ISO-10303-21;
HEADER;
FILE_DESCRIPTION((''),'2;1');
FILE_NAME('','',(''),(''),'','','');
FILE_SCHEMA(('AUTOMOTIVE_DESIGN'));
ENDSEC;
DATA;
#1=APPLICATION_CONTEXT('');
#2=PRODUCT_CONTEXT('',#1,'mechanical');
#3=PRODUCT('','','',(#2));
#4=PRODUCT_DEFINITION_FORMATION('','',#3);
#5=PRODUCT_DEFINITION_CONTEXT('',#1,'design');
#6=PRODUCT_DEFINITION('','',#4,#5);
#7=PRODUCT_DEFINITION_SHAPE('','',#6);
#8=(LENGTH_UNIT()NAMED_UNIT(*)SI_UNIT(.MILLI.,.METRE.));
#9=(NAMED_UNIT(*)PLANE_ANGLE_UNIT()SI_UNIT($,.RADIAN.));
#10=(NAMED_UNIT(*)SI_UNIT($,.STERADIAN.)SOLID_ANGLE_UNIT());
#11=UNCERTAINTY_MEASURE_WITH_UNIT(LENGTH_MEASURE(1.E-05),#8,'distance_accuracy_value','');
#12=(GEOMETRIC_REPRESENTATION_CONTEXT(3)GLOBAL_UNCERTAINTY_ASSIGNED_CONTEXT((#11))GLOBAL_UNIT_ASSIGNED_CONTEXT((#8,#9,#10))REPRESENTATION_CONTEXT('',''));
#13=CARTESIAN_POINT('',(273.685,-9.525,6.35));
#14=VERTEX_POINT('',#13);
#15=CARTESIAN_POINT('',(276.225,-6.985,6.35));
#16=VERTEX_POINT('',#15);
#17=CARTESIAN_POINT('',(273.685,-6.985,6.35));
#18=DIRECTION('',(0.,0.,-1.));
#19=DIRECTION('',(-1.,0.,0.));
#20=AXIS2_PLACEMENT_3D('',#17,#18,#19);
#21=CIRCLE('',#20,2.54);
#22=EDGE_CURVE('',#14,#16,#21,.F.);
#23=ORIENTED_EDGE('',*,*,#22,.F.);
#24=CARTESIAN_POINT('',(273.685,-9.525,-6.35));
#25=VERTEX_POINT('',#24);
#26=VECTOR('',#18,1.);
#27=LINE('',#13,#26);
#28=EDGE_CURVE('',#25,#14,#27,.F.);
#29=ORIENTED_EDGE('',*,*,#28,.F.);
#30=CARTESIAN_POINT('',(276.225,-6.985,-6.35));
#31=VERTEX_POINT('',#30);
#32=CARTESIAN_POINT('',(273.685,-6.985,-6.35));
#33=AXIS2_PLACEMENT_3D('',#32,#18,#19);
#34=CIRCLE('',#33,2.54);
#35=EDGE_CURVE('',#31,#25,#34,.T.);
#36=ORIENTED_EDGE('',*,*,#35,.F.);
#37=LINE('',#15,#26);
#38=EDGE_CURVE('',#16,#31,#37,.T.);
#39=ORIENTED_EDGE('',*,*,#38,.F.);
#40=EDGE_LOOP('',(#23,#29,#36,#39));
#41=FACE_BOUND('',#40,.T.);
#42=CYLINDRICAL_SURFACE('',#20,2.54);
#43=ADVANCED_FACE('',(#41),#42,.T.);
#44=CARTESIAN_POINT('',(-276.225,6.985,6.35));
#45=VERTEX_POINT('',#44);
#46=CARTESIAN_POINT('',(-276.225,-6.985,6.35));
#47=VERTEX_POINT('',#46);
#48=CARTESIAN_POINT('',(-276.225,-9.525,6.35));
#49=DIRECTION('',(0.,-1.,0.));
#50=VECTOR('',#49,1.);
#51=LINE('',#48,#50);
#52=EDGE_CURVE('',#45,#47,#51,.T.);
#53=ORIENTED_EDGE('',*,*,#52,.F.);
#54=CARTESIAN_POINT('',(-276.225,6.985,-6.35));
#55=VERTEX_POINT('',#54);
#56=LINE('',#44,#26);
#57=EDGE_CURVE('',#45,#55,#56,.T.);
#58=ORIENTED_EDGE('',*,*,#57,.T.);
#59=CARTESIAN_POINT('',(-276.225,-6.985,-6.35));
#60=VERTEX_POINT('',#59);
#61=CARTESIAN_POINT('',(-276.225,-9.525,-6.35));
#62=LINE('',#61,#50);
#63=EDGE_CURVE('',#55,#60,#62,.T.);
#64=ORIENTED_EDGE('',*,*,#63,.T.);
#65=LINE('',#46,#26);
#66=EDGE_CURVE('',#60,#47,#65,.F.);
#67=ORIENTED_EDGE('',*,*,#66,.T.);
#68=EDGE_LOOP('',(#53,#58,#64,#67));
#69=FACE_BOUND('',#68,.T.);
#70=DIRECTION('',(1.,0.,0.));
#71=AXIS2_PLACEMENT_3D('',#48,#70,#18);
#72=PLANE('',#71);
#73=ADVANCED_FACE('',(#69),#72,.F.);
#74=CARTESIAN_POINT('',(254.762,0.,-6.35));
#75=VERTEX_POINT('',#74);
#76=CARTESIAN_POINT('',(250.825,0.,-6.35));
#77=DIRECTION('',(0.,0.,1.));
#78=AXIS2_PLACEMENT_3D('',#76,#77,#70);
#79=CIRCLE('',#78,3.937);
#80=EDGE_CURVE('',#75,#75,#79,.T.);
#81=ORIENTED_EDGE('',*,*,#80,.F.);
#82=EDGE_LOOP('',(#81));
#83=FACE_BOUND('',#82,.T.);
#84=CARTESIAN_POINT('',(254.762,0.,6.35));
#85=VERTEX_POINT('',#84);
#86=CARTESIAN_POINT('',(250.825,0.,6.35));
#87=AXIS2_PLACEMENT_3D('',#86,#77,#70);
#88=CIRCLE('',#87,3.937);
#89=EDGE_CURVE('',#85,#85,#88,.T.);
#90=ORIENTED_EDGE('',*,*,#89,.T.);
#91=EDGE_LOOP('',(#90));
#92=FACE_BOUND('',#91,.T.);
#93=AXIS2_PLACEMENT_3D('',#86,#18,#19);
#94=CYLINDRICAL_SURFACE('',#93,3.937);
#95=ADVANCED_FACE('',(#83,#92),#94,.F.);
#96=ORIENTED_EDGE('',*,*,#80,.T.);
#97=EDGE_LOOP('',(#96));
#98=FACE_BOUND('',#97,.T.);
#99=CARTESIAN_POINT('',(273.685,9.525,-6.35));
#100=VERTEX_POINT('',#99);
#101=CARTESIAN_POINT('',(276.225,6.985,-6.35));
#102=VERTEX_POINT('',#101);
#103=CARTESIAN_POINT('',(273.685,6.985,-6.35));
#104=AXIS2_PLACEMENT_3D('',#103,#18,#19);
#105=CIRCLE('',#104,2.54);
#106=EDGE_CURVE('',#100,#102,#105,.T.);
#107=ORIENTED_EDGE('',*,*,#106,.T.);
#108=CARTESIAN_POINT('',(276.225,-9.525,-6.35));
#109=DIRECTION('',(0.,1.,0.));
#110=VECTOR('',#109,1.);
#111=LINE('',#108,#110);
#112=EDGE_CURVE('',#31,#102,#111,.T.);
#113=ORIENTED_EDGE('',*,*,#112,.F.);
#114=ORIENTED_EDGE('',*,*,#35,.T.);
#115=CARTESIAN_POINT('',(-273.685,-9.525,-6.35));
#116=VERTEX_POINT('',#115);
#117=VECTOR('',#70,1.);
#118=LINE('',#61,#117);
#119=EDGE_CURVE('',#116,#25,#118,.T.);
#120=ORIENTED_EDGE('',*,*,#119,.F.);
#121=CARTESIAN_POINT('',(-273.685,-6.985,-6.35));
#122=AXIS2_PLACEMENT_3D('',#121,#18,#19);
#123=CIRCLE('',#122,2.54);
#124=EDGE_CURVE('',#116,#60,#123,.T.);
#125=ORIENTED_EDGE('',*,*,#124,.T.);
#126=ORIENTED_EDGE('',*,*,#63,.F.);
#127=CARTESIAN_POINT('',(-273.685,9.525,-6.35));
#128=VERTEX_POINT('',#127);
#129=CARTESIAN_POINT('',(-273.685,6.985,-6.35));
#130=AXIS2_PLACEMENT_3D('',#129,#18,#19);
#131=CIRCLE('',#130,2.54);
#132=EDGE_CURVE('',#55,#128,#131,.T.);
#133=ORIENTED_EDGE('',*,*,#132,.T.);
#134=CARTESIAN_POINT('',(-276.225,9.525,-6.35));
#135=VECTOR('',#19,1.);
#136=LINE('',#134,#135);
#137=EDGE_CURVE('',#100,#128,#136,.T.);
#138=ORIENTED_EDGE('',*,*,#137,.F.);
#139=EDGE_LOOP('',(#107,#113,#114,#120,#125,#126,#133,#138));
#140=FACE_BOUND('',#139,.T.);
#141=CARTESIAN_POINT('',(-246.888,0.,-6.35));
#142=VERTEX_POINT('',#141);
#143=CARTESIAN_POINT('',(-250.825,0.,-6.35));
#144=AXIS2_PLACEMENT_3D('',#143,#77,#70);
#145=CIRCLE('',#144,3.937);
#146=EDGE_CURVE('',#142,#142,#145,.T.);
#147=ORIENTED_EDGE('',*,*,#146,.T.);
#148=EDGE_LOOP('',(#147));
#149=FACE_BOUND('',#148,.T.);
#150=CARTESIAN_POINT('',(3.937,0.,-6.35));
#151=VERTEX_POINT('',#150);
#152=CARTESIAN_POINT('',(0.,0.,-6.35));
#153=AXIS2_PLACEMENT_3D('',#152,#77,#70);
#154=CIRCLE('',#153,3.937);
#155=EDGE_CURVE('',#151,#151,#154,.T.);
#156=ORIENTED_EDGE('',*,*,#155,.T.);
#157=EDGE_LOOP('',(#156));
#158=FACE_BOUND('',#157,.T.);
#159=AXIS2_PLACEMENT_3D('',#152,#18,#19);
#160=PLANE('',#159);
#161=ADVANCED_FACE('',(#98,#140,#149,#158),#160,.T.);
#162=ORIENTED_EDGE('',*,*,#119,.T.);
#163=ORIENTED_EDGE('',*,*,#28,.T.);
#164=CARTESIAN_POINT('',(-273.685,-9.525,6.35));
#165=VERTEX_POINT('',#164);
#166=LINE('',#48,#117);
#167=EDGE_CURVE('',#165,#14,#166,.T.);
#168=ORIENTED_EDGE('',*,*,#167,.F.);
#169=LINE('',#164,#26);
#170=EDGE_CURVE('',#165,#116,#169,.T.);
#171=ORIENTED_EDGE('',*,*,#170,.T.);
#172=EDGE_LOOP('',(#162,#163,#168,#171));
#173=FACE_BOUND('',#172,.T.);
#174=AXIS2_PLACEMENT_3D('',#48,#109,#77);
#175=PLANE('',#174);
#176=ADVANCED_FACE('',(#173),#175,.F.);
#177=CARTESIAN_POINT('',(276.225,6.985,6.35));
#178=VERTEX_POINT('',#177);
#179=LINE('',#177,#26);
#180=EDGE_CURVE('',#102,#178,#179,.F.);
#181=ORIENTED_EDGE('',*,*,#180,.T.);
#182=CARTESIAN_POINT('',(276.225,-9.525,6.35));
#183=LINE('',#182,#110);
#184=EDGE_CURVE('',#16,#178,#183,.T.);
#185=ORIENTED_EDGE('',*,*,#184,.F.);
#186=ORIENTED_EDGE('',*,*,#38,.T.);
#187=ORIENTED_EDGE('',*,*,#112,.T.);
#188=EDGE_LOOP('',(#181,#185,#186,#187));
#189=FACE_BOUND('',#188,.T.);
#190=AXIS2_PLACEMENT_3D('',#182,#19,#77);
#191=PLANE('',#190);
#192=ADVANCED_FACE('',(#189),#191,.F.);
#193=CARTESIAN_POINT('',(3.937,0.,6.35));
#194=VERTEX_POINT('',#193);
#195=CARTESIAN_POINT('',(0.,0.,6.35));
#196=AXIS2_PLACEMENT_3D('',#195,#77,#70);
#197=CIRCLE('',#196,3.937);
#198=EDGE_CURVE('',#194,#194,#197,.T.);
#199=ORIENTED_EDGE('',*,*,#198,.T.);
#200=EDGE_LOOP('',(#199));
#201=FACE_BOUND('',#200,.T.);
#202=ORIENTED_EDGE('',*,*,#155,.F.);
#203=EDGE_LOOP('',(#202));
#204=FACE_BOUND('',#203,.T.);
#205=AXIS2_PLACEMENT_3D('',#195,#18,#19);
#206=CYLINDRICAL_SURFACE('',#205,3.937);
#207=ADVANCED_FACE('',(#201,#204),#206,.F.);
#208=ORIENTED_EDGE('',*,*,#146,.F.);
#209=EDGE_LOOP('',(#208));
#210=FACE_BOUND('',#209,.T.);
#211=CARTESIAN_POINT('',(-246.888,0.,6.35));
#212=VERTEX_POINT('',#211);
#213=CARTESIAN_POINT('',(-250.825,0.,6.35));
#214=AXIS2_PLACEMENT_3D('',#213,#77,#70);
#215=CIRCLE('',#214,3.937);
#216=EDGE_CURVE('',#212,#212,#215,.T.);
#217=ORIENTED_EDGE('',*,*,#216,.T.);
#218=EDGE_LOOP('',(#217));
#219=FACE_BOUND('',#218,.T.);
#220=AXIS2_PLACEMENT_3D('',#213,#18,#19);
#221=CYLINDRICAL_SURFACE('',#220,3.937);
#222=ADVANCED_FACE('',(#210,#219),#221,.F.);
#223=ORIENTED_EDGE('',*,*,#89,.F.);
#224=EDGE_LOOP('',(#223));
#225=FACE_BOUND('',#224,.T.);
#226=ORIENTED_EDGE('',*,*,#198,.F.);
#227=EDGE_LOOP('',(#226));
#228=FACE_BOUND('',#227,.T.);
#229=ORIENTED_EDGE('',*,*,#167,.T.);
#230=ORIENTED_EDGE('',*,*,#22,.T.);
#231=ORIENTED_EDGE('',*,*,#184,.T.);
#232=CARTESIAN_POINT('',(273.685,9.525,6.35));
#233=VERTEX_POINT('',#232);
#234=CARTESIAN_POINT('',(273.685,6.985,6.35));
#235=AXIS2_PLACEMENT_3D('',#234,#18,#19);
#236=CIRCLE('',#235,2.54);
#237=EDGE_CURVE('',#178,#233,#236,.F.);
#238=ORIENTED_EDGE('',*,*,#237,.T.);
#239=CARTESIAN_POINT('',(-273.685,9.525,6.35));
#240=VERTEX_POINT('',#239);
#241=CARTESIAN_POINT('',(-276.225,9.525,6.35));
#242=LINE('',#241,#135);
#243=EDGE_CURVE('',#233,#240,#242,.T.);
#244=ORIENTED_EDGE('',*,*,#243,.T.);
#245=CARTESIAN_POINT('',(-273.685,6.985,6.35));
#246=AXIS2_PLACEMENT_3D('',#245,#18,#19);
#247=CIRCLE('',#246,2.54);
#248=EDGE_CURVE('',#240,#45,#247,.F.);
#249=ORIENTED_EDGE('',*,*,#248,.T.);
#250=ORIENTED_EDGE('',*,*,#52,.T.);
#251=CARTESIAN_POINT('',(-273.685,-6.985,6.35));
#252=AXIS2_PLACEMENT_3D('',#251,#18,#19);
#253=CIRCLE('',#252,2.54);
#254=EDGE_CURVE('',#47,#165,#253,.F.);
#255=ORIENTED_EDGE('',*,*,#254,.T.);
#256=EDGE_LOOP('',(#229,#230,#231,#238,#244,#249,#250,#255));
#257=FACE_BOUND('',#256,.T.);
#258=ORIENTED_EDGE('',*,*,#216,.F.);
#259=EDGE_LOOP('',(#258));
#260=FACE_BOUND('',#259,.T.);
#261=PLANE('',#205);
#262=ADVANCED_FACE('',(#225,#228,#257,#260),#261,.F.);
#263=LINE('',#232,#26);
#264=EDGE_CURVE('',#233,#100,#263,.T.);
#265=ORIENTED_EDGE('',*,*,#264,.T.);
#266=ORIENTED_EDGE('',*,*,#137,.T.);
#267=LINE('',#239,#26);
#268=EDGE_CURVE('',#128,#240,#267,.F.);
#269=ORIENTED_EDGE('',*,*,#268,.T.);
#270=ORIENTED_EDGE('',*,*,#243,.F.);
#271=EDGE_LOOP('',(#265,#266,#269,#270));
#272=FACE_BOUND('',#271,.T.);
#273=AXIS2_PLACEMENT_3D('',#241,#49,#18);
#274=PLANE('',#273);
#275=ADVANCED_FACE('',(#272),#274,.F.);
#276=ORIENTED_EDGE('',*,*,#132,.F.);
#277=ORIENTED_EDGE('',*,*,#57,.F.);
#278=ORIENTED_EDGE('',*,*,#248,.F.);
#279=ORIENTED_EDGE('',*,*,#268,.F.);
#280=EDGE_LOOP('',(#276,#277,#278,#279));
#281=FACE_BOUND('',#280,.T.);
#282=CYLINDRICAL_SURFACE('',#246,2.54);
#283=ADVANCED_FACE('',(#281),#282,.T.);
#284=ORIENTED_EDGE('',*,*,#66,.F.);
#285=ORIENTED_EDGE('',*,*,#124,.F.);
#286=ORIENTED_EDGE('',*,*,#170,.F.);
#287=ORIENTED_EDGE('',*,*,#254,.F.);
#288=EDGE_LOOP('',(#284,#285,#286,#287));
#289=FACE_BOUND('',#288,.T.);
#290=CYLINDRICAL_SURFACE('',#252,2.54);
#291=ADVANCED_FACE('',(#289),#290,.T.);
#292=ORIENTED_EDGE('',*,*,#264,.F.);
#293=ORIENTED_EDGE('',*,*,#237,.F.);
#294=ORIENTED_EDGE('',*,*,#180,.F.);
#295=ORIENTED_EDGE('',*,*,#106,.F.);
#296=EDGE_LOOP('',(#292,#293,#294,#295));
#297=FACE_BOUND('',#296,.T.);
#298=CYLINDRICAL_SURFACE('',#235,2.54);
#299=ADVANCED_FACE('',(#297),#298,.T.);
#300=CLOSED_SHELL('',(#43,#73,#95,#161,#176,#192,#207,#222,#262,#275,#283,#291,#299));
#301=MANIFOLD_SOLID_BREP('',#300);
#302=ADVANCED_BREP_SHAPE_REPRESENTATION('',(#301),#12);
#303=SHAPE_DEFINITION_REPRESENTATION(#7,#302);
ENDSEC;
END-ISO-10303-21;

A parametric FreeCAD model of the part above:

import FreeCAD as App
import Part
import Sketcher

V = App.Vector
Q = App.Units.Quantity


def edges_at(feature, points):
    """Names of the edges that pass closest to the given points."""
    edges = feature.Shape.Edges
    near = lambda p: min(range(len(edges)), key=lambda i: edges[i].distToShape(Part.Vertex(*p))[0])
    return sorted({f"Edge{near(p) + 1}" for p in points})


def add_polygon(sketch, points):
    """Adds a closed chain of lines whose ends are joined by coincident constraints."""
    first, n = sketch.GeometryCount, len(points)
    for a, b in zip(points, points[1:] + points[:1]):
        sketch.addGeometry(Part.LineSegment(App.Vector(*a, 0), App.Vector(*b, 0)), False)
    for i in range(n):
        sketch.addConstraint(Sketcher.Constraint("Coincident", first + i, 2, first + (i + 1) % n, 1))

doc = App.newDocument("Part")
params = doc.addObject("Spreadsheet::Sheet", "Params")
for row, (alias, value) in enumerate([
    ("sketch1_diameter", "0.31 in"),
    ("sketch1_width", "21.75 in"),
    ("sketch1_height", "0.75 in"),
    ("pad1_length", "0.5 in"),
    ("fillet_radius", "0.1 in"),
], start=1):
    params.set(f"A{row}", alias)
    params.set(f"B{row}", "=" + value)
    params.setAlias(f"B{row}", alias)

body = doc.addObject("PartDesign::Body", "Body")

# Sketch on XY plane
sketch1 = body.newObject("Sketcher::SketchObject", "Sketch")
sketch1.AttachmentSupport = (doc.getObject("XY_Plane"), [""])
sketch1.MapMode = "FlatFace"
add_polygon(sketch1, [(-276.225, 9.525), (-276.225, -9.525), (276.225, -9.525), (276.225, 9.525)])  # lines 0-3
sketch1.addGeometry(Part.Circle(V(-250.825, 0, 0), V(0, 0, 1), 3.937), False)  # 4
sketch1.addGeometry(Part.Circle(V(0, 0, 0), V(0, 0, 1), 3.937), False)  # 5
sketch1.addGeometry(Part.Circle(V(250.825, 0, 0), V(0, 0, 1), 3.937), False)  # 6
sketch1.addConstraint([
    Sketcher.Constraint("Vertical", 0),
    Sketcher.Constraint("Horizontal", 1),
    Sketcher.Constraint("Vertical", 2),
    Sketcher.Constraint("Horizontal", 3),
    Sketcher.Constraint("Coincident", 5, 3, -1, 1),
    Sketcher.Constraint("Equal", 4, 5),
    Sketcher.Constraint("Equal", 5, 6),
    Sketcher.Constraint("Symmetric", 4, 3, 6, 3, -1, 1),
    Sketcher.Constraint("Symmetric", 0, 2, 2, 2, -1, 1),
    Sketcher.Constraint("PointOnObject", 4, 3, -1),
    Sketcher.Constraint("Diameter", 4, Q("0.31 in")),
    Sketcher.Constraint("DistanceX", 0, 2, 4, 3, Q("1 in")),
    Sketcher.Constraint("DistanceX", 1, 1, 1, 2, Q("21.75 in")),
    Sketcher.Constraint("DistanceY", 0, 2, 0, 1, Q("0.75 in")),
])
sketch1.setExpression("Constraints[14]", "Params.sketch1_diameter")
sketch1.setExpression("Constraints[16]", "Params.sketch1_width")
sketch1.setExpression("Constraints[17]", "Params.sketch1_height")
pad1 = body.newObject("PartDesign::Pad", "Pad")
pad1.Profile = sketch1
pad1.setExpression("Length", "Params.pad1_length")
pad1.Midplane = True
doc.recompute()

fillet = body.newObject("PartDesign::Fillet", "Fillet")
fillet.Base = (pad1, edges_at(pad1, [
    (276.225, -9.525, 0),
    (-276.225, -9.525, 0),
    (-276.225, 9.525, 0),
    (276.225, 9.525, 0),
]))
fillet.setExpression("Radius", "Params.fillet_radius")

doc.recompute()
